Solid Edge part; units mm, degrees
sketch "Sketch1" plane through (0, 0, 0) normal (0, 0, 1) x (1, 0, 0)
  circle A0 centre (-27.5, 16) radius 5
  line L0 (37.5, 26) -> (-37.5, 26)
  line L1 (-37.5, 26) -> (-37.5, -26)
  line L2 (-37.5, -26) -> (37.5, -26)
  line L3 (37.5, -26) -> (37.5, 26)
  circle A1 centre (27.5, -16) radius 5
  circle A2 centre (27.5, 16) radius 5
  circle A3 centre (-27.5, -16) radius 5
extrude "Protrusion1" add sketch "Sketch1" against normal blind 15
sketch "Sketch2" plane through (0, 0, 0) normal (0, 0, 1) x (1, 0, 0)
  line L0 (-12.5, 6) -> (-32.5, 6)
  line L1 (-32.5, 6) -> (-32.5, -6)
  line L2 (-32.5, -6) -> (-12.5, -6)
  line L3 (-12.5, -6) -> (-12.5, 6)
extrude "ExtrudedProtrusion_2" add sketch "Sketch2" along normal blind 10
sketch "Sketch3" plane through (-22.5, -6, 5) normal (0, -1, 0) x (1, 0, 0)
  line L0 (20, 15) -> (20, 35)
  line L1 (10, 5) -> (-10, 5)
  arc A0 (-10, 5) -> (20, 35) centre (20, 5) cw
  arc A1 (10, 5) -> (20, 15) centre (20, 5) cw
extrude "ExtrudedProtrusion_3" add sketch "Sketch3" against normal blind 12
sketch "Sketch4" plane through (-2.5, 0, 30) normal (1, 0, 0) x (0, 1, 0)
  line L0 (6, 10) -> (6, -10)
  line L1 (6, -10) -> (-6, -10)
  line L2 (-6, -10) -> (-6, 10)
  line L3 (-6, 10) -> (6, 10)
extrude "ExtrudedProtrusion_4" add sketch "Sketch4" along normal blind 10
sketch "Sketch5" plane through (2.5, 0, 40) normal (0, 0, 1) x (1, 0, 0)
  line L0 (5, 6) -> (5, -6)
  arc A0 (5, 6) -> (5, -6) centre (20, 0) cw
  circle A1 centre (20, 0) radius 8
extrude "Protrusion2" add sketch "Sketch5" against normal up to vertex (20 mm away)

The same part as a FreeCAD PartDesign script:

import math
import FreeCAD as App
import Part
import Sketcher
Q = App.Units.Quantity


def add_polygon(sketch, points):
    """Adds a closed chain of lines whose ends are joined by coincident constraints."""
    first, n = sketch.GeometryCount, len(points)
    for a, b in zip(points, points[1:] + points[:1]):
        sketch.addGeometry(Part.LineSegment(App.Vector(*a, 0), App.Vector(*b, 0)), False)
    for i in range(n):
        sketch.addConstraint(Sketcher.Constraint("Coincident", first + i, 2, first + (i + 1) % n, 1))

doc = App.newDocument("Part")
body = doc.addObject("PartDesign::Body", "Body")

# Sketch on XY plane
sketch1 = body.newObject("Sketcher::SketchObject", "Sketch")
sketch1.AttachmentSupport = (doc.getObject("XY_Plane"), [""])
sketch1.MapMode = "FlatFace"
add_polygon(sketch1, [(37.5, -26), (37.5, 26), (-37.5, 26), (-37.5, -26)])  # lines 0-3
sketch1.addGeometry(Part.Circle(App.Vector(-27.5, -16, 0), App.Vector(0, 0, 1), 5), False)  # 4
sketch1.addGeometry(Part.Circle(App.Vector(27.5, -16, 0), App.Vector(0, 0, 1), 5), False)  # 5
sketch1.addGeometry(Part.Circle(App.Vector(-27.5, 16, 0), App.Vector(0, 0, 1), 5), False)  # 6
sketch1.addGeometry(Part.Circle(App.Vector(27.5, 16, 0), App.Vector(0, 0, 1), 5), False)  # 7
sketch1.addConstraint([
    Sketcher.Constraint("Vertical", 0),
    Sketcher.Constraint("Horizontal", 1),
    Sketcher.Constraint("Vertical", 2),
    Sketcher.Constraint("Horizontal", 3),
    Sketcher.Constraint("Equal", 4, 5),
    Sketcher.Constraint("Equal", 5, 6),
    Sketcher.Constraint("Equal", 6, 7),
    Sketcher.Constraint("Symmetric", 5, 3, 6, 3, -1, 1),
    Sketcher.Constraint("Symmetric", 4, 3, 7, 3, -1, 1),
    Sketcher.Constraint("Symmetric", 0, 2, 2, 2, -1, 1),
    Sketcher.Constraint("Symmetric", 4, 3, 5, 3, -2),
    Sketcher.Constraint("Diameter", 4, Q("10 mm")),
    Sketcher.Constraint("DistanceX", 1, 2, 1, 1, Q("75 mm")),
    Sketcher.Constraint("DistanceY", 0, 1, 0, 2, Q("52 mm")),
    Sketcher.Constraint("DistanceY", 4, 3, -1, 1, Q("16 mm")),
    Sketcher.Constraint("DistanceX", 4, 3, 5, 3, Q("55 mm")),
])
pad1 = body.newObject("PartDesign::Pad", "Pad")
pad1.Profile = sketch1
pad1.Length = 15
pad1.Reversed = True

# Sketch on XY plane
sketch2 = body.newObject("Sketcher::SketchObject", "Sketch001")
sketch2.AttachmentSupport = (doc.getObject("XY_Plane"), [""])
sketch2.MapMode = "FlatFace"
add_polygon(sketch2, [(-12.5, -6), (-12.5, 6), (-32.5, 6), (-32.5, -6)])  # lines 0-3
sketch2.addConstraint([
    Sketcher.Constraint("Vertical", 0),
    Sketcher.Constraint("Horizontal", 1),
    Sketcher.Constraint("Vertical", 2),
    Sketcher.Constraint("Horizontal", 3),
    Sketcher.Constraint("DistanceX", 1, 2, 1, 1, Q("20 mm")),
    Sketcher.Constraint("DistanceY", 0, 1, 0, 2, Q("12 mm")),
    Sketcher.Constraint("DistanceY", -1, 1, 0, 2, Q("6 mm")),
    Sketcher.Constraint("DistanceX", 0, 2, -1, 1, Q("12.5 mm")),
])
pad2 = body.newObject("PartDesign::Pad", "Pad001")
pad2.Profile = sketch2
pad2.Length = 10

# Sketch on XZ plane
sketch3 = body.newObject("Sketcher::SketchObject", "Sketch002")
sketch3.AttachmentSupport = (doc.getObject("XZ_Plane"), [""])
sketch3.MapMode = "FlatFace"
sketch3.AttachmentOffset = App.Placement(App.Vector(0, 0, 6), App.Rotation())
sketch3.addGeometry([
    Part.ArcOfCircle(Part.Circle(App.Vector(-2.5, 10, 0), App.Vector(0, 0, 1), 10), math.radians(90), math.radians(180)),
    Part.LineSegment(App.Vector(-2.5, 20, 0), App.Vector(-2.5, 40, 0)),
    Part.ArcOfCircle(Part.Circle(App.Vector(-2.5, 10, 0), App.Vector(0, 0, 1), 30), math.radians(90), math.radians(180)),
    Part.LineSegment(App.Vector(-32.5, 10, 0), App.Vector(-12.5, 10, 0)),
], False)
sketch3.addConstraint([
    Sketcher.Constraint("Coincident", 0, 1, 1, 1),
    Sketcher.Constraint("Coincident", 1, 2, 2, 1),
    Sketcher.Constraint("Coincident", 2, 2, 3, 1),
    Sketcher.Constraint("Coincident", 3, 2, 0, 2),
    Sketcher.Constraint("Vertical", 1),
    Sketcher.Constraint("Horizontal", 3),
    Sketcher.Constraint("Coincident", 2, 3, 0, 3),
    Sketcher.Constraint("Horizontal", 0, 3, 2, 2),
    Sketcher.Constraint("Vertical", 2, 3, 0, 1),
    Sketcher.Constraint("Radius", 0, Q("10 mm")),
    Sketcher.Constraint("Radius", 2, Q("30 mm")),
    Sketcher.Constraint("DistanceY", -1, 1, 0, 3, Q("10 mm")),
    Sketcher.Constraint("DistanceX", 0, 3, -1, 1, Q("2.5 mm")),
])
pad3 = body.newObject("PartDesign::Pad", "Pad002")
pad3.Profile = sketch3
pad3.Length = 12
pad3.Reversed = True

# Sketch on YZ plane
sketch4 = body.newObject("Sketcher::SketchObject", "Sketch003")
sketch4.AttachmentSupport = (doc.getObject("YZ_Plane"), [""])
sketch4.MapMode = "FlatFace"
sketch4.AttachmentOffset = App.Placement(App.Vector(0, 0, -2.5), App.Rotation())
add_polygon(sketch4, [(6, 20), (6, 40), (-6, 40), (-6, 20)])  # lines 0-3
sketch4.addConstraint([
    Sketcher.Constraint("Vertical", 0),
    Sketcher.Constraint("Horizontal", 1),
    Sketcher.Constraint("Vertical", 2),
    Sketcher.Constraint("Horizontal", 3),
    Sketcher.Constraint("DistanceX", 1, 2, 1, 1, Q("12 mm")),
    Sketcher.Constraint("DistanceY", 0, 1, 0, 2, Q("20 mm")),
    Sketcher.Constraint("DistanceX", -1, 1, 0, 2, Q("6 mm")),
    Sketcher.Constraint("DistanceY", -1, 1, 0, 2, Q("40 mm")),
])
pad4 = body.newObject("PartDesign::Pad", "Pad003")
pad4.Profile = sketch4
pad4.Length = 10

# Sketch on XY plane
sketch5 = body.newObject("Sketcher::SketchObject", "Sketch004")
sketch5.AttachmentSupport = (doc.getObject("XY_Plane"), [""])
sketch5.MapMode = "FlatFace"
sketch5.AttachmentOffset = App.Placement(App.Vector(0, 0, 40), App.Rotation())
sketch5.addGeometry([
    Part.ArcOfCircle(Part.Circle(App.Vector(22.5, 0, 0), App.Vector(0, 0, 1), 16.155494), math.radians(-158.198591), math.radians(158.198591)),
    Part.LineSegment(App.Vector(7.5, 6, 0), App.Vector(7.5, -6, 0)),
    Part.Circle(App.Vector(22.5, 0, 0), App.Vector(0, 0, 1), 8),
], False)
sketch5.addConstraint([
    Sketcher.Constraint("Coincident", 0, 1, 1, 2),
    Sketcher.Constraint("Coincident", 1, 1, 0, 2),
    Sketcher.Constraint("Vertical", 1),
    Sketcher.Constraint("Coincident", 2, 3, 0, 3),
    Sketcher.Constraint("PointOnObject", 0, 3, -1),
    Sketcher.Constraint("Diameter", 2, Q("16 mm")),
    Sketcher.Constraint("DistanceY", 1, 2, 1, 1, Q("12 mm")),
    Sketcher.Constraint("DistanceX", 0, 1, 0, 3, Q("15 mm")),
    Sketcher.Constraint("DistanceX", -1, 1, 0, 3, Q("22.5 mm")),
])
pad5 = body.newObject("PartDesign::Pad", "Pad004")
pad5.Profile = sketch5
pad5.Length = 20
pad5.Reversed = True

doc.recompute()
